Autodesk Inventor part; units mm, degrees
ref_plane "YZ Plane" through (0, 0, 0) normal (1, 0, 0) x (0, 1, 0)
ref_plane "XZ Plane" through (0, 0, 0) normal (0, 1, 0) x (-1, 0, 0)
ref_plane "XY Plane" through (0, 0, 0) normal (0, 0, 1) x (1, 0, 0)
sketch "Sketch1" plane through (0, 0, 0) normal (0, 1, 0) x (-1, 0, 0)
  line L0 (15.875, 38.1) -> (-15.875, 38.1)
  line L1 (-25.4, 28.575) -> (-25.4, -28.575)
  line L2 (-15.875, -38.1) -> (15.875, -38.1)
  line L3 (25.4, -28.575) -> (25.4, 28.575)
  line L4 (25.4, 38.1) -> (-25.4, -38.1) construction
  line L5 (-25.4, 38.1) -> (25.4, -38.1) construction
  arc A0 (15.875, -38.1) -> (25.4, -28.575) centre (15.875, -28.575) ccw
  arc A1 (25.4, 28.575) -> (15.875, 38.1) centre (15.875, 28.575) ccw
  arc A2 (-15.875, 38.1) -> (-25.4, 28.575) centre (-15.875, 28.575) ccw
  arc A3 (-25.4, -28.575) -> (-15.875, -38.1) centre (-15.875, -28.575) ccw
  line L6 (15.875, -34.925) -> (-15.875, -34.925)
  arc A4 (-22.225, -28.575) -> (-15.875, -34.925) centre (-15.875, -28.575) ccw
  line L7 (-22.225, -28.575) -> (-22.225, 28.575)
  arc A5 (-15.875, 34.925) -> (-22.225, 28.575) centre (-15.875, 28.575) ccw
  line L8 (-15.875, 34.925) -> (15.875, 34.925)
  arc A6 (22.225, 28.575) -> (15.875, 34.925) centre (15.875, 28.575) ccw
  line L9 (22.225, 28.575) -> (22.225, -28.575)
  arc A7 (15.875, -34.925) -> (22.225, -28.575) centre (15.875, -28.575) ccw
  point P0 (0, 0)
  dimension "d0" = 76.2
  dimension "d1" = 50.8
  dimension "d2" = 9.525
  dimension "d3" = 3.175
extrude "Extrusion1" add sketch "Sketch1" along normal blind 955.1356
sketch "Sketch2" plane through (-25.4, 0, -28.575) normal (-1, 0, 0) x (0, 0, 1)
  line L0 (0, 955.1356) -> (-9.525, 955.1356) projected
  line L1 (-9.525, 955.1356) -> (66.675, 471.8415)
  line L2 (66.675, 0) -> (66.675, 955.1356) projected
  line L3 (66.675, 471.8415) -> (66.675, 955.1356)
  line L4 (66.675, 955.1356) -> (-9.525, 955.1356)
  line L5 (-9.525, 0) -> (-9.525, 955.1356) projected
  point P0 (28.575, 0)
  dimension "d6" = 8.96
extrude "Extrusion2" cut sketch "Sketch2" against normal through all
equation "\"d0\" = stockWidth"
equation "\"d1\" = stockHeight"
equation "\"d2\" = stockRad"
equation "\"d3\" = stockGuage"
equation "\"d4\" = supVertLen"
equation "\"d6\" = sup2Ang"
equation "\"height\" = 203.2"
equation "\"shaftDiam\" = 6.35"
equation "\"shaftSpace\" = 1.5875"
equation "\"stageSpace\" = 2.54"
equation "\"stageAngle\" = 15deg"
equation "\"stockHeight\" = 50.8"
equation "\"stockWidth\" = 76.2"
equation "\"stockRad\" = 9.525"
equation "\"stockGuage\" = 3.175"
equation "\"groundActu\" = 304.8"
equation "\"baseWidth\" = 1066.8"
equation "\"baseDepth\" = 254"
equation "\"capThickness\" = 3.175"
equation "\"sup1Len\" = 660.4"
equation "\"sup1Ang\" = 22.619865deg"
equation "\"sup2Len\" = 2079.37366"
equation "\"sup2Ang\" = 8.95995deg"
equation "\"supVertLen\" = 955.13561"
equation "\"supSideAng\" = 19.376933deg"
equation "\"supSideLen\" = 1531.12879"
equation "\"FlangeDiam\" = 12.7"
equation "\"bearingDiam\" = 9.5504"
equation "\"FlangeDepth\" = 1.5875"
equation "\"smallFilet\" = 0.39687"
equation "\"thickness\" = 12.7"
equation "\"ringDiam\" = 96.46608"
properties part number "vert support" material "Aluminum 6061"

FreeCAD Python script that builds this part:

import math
import FreeCAD as App
import Part
import Sketcher
Q = App.Units.Quantity

doc = App.newDocument("Part")
body = doc.addObject("PartDesign::Body", "Body")

# Sketch on XZ plane
sketch1 = doc.addObject("Sketcher::SketchObject", "Sketch")
body.addObject(sketch1)
sketch1.AttachmentSupport = (doc.XZ_Plane, [""])
sketch1.MapMode = "FlatFace"
sketch1.addGeometry(Part.ArcOfCircle(Part.Circle(App.Vector(-16, 29, 0), App.Vector(0, 0, 1), 10), math.radians(90), math.radians(180)), False)
sketch1.addGeometry(Part.LineSegment(App.Vector(-16, 38, 0), App.Vector(16, 38, 0)), False)
sketch1.addGeometry(Part.ArcOfCircle(Part.Circle(App.Vector(16, 29, 0), App.Vector(0, 0, 1), 10), math.radians(0), math.radians(90)), False)
sketch1.addGeometry(Part.LineSegment(App.Vector(25, 29, 0), App.Vector(25, -29, 0)), False)
sketch1.addGeometry(Part.ArcOfCircle(Part.Circle(App.Vector(16, -29, 0), App.Vector(0, 0, 1), 10), math.radians(-90), math.radians(0)), False)
sketch1.addGeometry(Part.LineSegment(App.Vector(16, -38, 0), App.Vector(-16, -38, 0)), False)
sketch1.addGeometry(Part.ArcOfCircle(Part.Circle(App.Vector(-16, -29, 0), App.Vector(0, 0, 1), 10), math.radians(180), math.radians(270)), False)
sketch1.addGeometry(Part.LineSegment(App.Vector(-25, -29, 0), App.Vector(-25, 29, 0)), False)
sketch1.addGeometry(Part.ArcOfCircle(Part.Circle(App.Vector(-16, -29, 0), App.Vector(0, 0, 1), 6), math.radians(180), math.radians(270)), False)
sketch1.addGeometry(Part.LineSegment(App.Vector(-16, -35, 0), App.Vector(16, -35, 0)), False)
sketch1.addGeometry(Part.ArcOfCircle(Part.Circle(App.Vector(16, -29, 0), App.Vector(0, 0, 1), 6), math.radians(-90), math.radians(0)), False)
sketch1.addGeometry(Part.LineSegment(App.Vector(22, -29, 0), App.Vector(22, 29, 0)), False)
sketch1.addGeometry(Part.ArcOfCircle(Part.Circle(App.Vector(16, 29, 0), App.Vector(0, 0, 1), 6), math.radians(0), math.radians(90)), False)
sketch1.addGeometry(Part.LineSegment(App.Vector(16, 35, 0), App.Vector(-16, 35, 0)), False)
sketch1.addGeometry(Part.ArcOfCircle(Part.Circle(App.Vector(-16, 29, 0), App.Vector(0, 0, 1), 6), math.radians(90), math.radians(180)), False)
sketch1.addGeometry(Part.LineSegment(App.Vector(-22, 29, 0), App.Vector(-22, -29, 0)), False)
sketch1.addConstraint(Sketcher.Constraint("Tangent", 0, 1, 1, 1))
sketch1.addConstraint(Sketcher.Constraint("Tangent", 1, 2, 2, 2))
sketch1.addConstraint(Sketcher.Constraint("Tangent", 2, 1, 3, 1))
sketch1.addConstraint(Sketcher.Constraint("Tangent", 3, 2, 4, 2))
sketch1.addConstraint(Sketcher.Constraint("Tangent", 4, 1, 5, 1))
sketch1.addConstraint(Sketcher.Constraint("Tangent", 5, 2, 6, 2))
sketch1.addConstraint(Sketcher.Constraint("Tangent", 6, 1, 7, 1))
sketch1.addConstraint(Sketcher.Constraint("Tangent", 7, 2, 0, 2))
sketch1.addConstraint(Sketcher.Constraint("Tangent", 8, 2, 9, 1))
sketch1.addConstraint(Sketcher.Constraint("Tangent", 9, 2, 10, 1))
sketch1.addConstraint(Sketcher.Constraint("Tangent", 10, 2, 11, 1))
sketch1.addConstraint(Sketcher.Constraint("Tangent", 11, 2, 12, 1))
sketch1.addConstraint(Sketcher.Constraint("Tangent", 12, 2, 13, 1))
sketch1.addConstraint(Sketcher.Constraint("Tangent", 13, 2, 14, 1))
sketch1.addConstraint(Sketcher.Constraint("Tangent", 14, 2, 15, 1))
sketch1.addConstraint(Sketcher.Constraint("Tangent", 15, 2, 8, 1))
sketch1.addConstraint(Sketcher.Constraint("Horizontal", 1))
sketch1.addConstraint(Sketcher.Constraint("Vertical", 3))
sketch1.addConstraint(Sketcher.Constraint("Horizontal", 5))
sketch1.addConstraint(Sketcher.Constraint("Vertical", 7))
sketch1.addConstraint(Sketcher.Constraint("Horizontal", 9))
sketch1.addConstraint(Sketcher.Constraint("Vertical", 11))
sketch1.addConstraint(Sketcher.Constraint("Horizontal", 13))
sketch1.addConstraint(Sketcher.Constraint("Vertical", 15))
sketch1.addConstraint(Sketcher.Constraint("Coincident", 8, 3, 6, 3))
sketch1.addConstraint(Sketcher.Constraint("Coincident", 10, 3, 4, 3))
sketch1.addConstraint(Sketcher.Constraint("Coincident", 12, 3, 2, 3))
sketch1.addConstraint(Sketcher.Constraint("Equal", 0, 2))
sketch1.addConstraint(Sketcher.Constraint("Equal", 2, 4))
sketch1.addConstraint(Sketcher.Constraint("Equal", 4, 6))
sketch1.addConstraint(Sketcher.Constraint("Equal", 12, 14))
sketch1.addConstraint(Sketcher.Constraint("Symmetric", 0, 3, 4, 3, -1, 1))
sketch1.addConstraint(Sketcher.Constraint("Radius", 0, Q("0.375 in")))
sketch1.addConstraint(Sketcher.Constraint("Radius", 8, Q("0.25 in")))
sketch1.addConstraint(Sketcher.Constraint("DistanceX", -1, 1, 2, 1, Q("1 in")))
sketch1.addConstraint(Sketcher.Constraint("DistanceY", 3, 2, 3, 1, Q("2.25 in")))
pad1 = doc.addObject("PartDesign::Pad", "Pad")
body.addObject(pad1)
pad1.Profile = sketch1
pad1.Length = 955.1356
pad1.Reversed = True

# Sketch on YZ plane
sketch2 = doc.addObject("Sketcher::SketchObject", "Sketch001")
body.addObject(sketch2)
sketch2.AttachmentSupport = (doc.YZ_Plane, [""])
sketch2.MapMode = "FlatFace"
sketch2.AttachmentOffset = App.Placement(App.Vector(0, 0, -1 * 25.4), App.Rotation())
sketch2.addGeometry(Part.LineSegment(App.Vector(955.1356, 38.1, 0), App.Vector(955.1356, -38.1, 0)), False)
sketch2.addGeometry(Part.LineSegment(App.Vector(955.1356, -38.1, 0), App.Vector(471.8415, 38.1, 0)), False)
sketch2.addGeometry(Part.LineSegment(App.Vector(471.8415, 38.1, 0), App.Vector(955.1356, 38.1, 0)), False)
sketch2.addConstraint(Sketcher.Constraint("Coincident", 0, 2, 1, 1))
sketch2.addConstraint(Sketcher.Constraint("Coincident", 1, 2, 2, 1))
sketch2.addConstraint(Sketcher.Constraint("Coincident", 2, 2, 0, 1))
sketch2.addConstraint(Sketcher.Constraint("Vertical", 0))
sketch2.addConstraint(Sketcher.Constraint("Horizontal", 2))
sketch2.addConstraint(Sketcher.Constraint("DistanceY", 0, 2, 0, 1, Q("3 in")))
sketch2.addConstraint(Sketcher.Constraint("DistanceY", 0, 2, -1, 1, Q("1.5 in")))
sketch2.addConstraint(Sketcher.Constraint("DistanceX", 2, 1, 2, 2, 483.294))
sketch2.addConstraint(Sketcher.Constraint("DistanceX", -1, 1, 0, 2, 955.1356))
pocket1 = doc.addObject("PartDesign::Pocket", "Pocket")
body.addObject(pocket1)
pocket1.Profile = sketch2
pocket1.Type = "ThroughAll"
pocket1.Reversed = True

doc.recompute()
